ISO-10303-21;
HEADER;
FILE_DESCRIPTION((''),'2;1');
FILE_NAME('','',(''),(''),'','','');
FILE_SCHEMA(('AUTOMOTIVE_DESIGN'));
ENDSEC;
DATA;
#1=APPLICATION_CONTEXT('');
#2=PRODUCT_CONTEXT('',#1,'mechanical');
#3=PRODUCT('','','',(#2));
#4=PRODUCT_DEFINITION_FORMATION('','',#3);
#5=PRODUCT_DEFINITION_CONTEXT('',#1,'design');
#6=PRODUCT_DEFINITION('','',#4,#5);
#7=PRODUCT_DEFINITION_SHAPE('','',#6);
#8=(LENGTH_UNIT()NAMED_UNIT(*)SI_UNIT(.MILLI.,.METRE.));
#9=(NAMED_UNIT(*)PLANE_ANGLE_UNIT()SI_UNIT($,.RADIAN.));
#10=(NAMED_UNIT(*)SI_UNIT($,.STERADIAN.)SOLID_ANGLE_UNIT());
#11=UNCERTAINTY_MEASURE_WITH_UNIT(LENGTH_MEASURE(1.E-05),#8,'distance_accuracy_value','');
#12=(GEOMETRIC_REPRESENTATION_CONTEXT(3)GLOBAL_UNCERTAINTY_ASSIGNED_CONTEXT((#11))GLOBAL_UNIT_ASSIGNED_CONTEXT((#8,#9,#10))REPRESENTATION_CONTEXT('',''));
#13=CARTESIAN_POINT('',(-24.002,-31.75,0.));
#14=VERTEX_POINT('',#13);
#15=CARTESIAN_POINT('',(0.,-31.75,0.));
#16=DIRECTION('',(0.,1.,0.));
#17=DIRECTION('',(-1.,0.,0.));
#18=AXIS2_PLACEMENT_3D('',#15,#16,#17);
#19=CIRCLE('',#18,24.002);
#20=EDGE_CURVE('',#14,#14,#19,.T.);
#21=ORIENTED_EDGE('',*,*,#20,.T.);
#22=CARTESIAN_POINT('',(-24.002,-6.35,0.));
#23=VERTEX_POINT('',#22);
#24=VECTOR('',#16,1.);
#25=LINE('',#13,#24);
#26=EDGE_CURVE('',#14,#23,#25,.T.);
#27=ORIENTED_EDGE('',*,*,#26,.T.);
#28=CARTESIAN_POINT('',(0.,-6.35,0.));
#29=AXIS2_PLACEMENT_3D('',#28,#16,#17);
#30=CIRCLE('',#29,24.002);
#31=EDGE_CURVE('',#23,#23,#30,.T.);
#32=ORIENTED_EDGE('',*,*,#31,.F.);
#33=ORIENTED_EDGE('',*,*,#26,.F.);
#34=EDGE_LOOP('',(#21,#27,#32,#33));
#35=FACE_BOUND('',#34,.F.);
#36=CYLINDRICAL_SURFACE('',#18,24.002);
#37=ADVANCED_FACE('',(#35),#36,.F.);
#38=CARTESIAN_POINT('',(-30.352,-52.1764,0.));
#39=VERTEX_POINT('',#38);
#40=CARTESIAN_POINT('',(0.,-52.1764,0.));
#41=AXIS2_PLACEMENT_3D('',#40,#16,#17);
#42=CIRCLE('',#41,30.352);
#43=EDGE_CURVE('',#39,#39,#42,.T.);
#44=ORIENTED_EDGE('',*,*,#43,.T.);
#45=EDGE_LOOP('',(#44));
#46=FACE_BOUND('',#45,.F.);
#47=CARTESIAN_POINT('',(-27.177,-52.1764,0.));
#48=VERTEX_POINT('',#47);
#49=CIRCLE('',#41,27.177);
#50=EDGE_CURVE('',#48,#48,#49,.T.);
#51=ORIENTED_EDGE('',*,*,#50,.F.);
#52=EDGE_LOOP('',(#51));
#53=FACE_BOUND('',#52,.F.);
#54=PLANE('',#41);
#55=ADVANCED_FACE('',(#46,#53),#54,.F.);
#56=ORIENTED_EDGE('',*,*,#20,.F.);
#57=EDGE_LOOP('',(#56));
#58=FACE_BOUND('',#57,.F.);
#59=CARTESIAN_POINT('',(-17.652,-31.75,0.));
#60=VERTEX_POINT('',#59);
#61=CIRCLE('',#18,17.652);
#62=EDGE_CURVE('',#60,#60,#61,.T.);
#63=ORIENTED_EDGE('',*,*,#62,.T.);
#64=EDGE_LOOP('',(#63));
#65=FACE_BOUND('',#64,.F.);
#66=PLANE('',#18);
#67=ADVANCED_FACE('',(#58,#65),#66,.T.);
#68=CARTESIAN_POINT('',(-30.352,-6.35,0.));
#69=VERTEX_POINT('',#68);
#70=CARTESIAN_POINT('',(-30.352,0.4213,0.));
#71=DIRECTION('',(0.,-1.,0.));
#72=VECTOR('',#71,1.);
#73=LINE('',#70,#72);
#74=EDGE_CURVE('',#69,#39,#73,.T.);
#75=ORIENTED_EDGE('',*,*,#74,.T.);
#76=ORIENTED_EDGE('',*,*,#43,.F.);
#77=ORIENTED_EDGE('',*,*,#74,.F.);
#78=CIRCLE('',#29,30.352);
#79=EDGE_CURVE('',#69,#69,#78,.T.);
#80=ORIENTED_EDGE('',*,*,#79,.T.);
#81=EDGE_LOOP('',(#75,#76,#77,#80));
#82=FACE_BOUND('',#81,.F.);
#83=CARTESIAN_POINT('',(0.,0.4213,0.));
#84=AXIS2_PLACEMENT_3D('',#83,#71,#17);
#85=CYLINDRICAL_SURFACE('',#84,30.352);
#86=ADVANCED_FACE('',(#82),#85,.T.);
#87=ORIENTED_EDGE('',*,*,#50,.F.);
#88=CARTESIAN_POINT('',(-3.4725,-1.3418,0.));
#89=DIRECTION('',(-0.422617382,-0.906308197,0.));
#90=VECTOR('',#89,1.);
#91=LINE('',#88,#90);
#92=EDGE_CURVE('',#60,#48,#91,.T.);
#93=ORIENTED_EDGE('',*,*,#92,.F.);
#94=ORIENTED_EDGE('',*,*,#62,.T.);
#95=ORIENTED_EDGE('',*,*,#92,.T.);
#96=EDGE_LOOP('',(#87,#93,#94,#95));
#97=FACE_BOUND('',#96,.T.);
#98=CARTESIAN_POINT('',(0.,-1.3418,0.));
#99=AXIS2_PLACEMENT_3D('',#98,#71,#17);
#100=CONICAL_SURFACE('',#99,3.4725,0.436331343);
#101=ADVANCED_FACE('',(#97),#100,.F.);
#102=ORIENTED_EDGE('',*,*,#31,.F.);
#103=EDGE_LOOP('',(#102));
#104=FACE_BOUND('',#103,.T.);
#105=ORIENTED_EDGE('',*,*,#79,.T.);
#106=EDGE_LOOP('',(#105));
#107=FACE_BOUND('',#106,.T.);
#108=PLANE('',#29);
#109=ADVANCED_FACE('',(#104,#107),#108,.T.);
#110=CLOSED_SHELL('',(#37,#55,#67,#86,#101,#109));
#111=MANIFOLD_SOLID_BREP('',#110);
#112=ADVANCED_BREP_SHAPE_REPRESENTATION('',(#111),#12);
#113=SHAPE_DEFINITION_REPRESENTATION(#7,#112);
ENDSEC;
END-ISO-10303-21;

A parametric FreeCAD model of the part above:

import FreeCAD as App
import Part
import Sketcher
Q = App.Units.Quantity

doc = App.newDocument("Part")
params = doc.addObject("Spreadsheet::Sheet", "Params")
for row, (alias, value) in enumerate([
    ("sketch1_width", "0.25 in"),
    ("sketch1_width2", "0.125 in"),
    ("sketch1_height", "1 in"),
    ("revolution_angle", "360 deg"),
], start=1):
    params.set(f"A{row}", alias)
    params.set(f"B{row}", "=" + value)
    params.setAlias(f"B{row}", alias)

body = doc.addObject("PartDesign::Body", "Body")

sketch1 = body.newObject("Sketcher::SketchObject", "Sketch")
sketch1.AttachmentSupport = (doc.getObject("XY_Plane"), [""])
sketch1.MapMode = "FlatFace"
sketch1.addGeometry(Part.LineSegment(App.Vector(-24.002, -31.75, 0), App.Vector(-24.002, -6.35, 0)), False)
sketch1.addGeometry(Part.LineSegment(App.Vector(-24.002, -6.35, 0), App.Vector(-30.352, -6.35, 0)), False)
sketch1.addGeometry(Part.LineSegment(App.Vector(-30.352, -6.35, 0), App.Vector(-30.352, -52.1764, 0)), False)
sketch1.addGeometry(Part.LineSegment(App.Vector(-30.352, -52.1764, 0), App.Vector(-27.177, -52.1764, 0)), False)
sketch1.addGeometry(Part.LineSegment(App.Vector(-27.177003, -52.176399, 0), App.Vector(-17.652033, -31.749984, 0)), False)
sketch1.addGeometry(Part.LineSegment(App.Vector(-17.652, -31.75, 0), App.Vector(-24.002, -31.75, 0)), False)
sketch1.addConstraint(Sketcher.Constraint("Coincident", 0, 2, 1, 1))
sketch1.addConstraint(Sketcher.Constraint("Coincident", 1, 2, 2, 1))
sketch1.addConstraint(Sketcher.Constraint("Coincident", 2, 2, 3, 1))
sketch1.addConstraint(Sketcher.Constraint("Coincident", 3, 2, 4, 1))
sketch1.addConstraint(Sketcher.Constraint("Coincident", 4, 2, 5, 1))
sketch1.addConstraint(Sketcher.Constraint("Coincident", 5, 2, 0, 1))
sketch1.addConstraint(Sketcher.Constraint("Vertical", 0))
sketch1.addConstraint(Sketcher.Constraint("Horizontal", 1))
sketch1.addConstraint(Sketcher.Constraint("Vertical", 2))
sketch1.addConstraint(Sketcher.Constraint("Horizontal", 3))
sketch1.addConstraint(Sketcher.Constraint("Horizontal", 5))
sketch1.addConstraint(Sketcher.Constraint("Equal", 1, 5))
sketch1.addConstraint(Sketcher.Constraint("DistanceX", 1, 2, 1, 1, Q("0.25 in")))
sketch1.addConstraint(Sketcher.Constraint("DistanceX", 3, 1, 3, 2, Q("0.125 in")))
sketch1.addConstraint(Sketcher.Constraint("DistanceY", 0, 1, 0, 2, Q("1 in")))
sketch1.addConstraint(Sketcher.Constraint("DistanceY", 0, 2, -1, 1, Q("0.25 in")))
sketch1.addConstraint(Sketcher.Constraint("Angle", 4, Q("65 deg")))
sketch1.addConstraint(Sketcher.Constraint("DistanceX", 0, 2, -1, 1, 24.002))
sketch1.setExpression("Constraints[12]", "Params.sketch1_width")
sketch1.setExpression("Constraints[13]", "Params.sketch1_width2")
sketch1.setExpression("Constraints[14]", "Params.sketch1_height")
revolution = body.newObject("PartDesign::Revolution", "Revolution")
revolution.Profile = sketch1
revolution.ReferenceAxis = (sketch1, ["V_Axis"])
revolution.setExpression("Angle", "Params.revolution_angle")

doc.recompute()
